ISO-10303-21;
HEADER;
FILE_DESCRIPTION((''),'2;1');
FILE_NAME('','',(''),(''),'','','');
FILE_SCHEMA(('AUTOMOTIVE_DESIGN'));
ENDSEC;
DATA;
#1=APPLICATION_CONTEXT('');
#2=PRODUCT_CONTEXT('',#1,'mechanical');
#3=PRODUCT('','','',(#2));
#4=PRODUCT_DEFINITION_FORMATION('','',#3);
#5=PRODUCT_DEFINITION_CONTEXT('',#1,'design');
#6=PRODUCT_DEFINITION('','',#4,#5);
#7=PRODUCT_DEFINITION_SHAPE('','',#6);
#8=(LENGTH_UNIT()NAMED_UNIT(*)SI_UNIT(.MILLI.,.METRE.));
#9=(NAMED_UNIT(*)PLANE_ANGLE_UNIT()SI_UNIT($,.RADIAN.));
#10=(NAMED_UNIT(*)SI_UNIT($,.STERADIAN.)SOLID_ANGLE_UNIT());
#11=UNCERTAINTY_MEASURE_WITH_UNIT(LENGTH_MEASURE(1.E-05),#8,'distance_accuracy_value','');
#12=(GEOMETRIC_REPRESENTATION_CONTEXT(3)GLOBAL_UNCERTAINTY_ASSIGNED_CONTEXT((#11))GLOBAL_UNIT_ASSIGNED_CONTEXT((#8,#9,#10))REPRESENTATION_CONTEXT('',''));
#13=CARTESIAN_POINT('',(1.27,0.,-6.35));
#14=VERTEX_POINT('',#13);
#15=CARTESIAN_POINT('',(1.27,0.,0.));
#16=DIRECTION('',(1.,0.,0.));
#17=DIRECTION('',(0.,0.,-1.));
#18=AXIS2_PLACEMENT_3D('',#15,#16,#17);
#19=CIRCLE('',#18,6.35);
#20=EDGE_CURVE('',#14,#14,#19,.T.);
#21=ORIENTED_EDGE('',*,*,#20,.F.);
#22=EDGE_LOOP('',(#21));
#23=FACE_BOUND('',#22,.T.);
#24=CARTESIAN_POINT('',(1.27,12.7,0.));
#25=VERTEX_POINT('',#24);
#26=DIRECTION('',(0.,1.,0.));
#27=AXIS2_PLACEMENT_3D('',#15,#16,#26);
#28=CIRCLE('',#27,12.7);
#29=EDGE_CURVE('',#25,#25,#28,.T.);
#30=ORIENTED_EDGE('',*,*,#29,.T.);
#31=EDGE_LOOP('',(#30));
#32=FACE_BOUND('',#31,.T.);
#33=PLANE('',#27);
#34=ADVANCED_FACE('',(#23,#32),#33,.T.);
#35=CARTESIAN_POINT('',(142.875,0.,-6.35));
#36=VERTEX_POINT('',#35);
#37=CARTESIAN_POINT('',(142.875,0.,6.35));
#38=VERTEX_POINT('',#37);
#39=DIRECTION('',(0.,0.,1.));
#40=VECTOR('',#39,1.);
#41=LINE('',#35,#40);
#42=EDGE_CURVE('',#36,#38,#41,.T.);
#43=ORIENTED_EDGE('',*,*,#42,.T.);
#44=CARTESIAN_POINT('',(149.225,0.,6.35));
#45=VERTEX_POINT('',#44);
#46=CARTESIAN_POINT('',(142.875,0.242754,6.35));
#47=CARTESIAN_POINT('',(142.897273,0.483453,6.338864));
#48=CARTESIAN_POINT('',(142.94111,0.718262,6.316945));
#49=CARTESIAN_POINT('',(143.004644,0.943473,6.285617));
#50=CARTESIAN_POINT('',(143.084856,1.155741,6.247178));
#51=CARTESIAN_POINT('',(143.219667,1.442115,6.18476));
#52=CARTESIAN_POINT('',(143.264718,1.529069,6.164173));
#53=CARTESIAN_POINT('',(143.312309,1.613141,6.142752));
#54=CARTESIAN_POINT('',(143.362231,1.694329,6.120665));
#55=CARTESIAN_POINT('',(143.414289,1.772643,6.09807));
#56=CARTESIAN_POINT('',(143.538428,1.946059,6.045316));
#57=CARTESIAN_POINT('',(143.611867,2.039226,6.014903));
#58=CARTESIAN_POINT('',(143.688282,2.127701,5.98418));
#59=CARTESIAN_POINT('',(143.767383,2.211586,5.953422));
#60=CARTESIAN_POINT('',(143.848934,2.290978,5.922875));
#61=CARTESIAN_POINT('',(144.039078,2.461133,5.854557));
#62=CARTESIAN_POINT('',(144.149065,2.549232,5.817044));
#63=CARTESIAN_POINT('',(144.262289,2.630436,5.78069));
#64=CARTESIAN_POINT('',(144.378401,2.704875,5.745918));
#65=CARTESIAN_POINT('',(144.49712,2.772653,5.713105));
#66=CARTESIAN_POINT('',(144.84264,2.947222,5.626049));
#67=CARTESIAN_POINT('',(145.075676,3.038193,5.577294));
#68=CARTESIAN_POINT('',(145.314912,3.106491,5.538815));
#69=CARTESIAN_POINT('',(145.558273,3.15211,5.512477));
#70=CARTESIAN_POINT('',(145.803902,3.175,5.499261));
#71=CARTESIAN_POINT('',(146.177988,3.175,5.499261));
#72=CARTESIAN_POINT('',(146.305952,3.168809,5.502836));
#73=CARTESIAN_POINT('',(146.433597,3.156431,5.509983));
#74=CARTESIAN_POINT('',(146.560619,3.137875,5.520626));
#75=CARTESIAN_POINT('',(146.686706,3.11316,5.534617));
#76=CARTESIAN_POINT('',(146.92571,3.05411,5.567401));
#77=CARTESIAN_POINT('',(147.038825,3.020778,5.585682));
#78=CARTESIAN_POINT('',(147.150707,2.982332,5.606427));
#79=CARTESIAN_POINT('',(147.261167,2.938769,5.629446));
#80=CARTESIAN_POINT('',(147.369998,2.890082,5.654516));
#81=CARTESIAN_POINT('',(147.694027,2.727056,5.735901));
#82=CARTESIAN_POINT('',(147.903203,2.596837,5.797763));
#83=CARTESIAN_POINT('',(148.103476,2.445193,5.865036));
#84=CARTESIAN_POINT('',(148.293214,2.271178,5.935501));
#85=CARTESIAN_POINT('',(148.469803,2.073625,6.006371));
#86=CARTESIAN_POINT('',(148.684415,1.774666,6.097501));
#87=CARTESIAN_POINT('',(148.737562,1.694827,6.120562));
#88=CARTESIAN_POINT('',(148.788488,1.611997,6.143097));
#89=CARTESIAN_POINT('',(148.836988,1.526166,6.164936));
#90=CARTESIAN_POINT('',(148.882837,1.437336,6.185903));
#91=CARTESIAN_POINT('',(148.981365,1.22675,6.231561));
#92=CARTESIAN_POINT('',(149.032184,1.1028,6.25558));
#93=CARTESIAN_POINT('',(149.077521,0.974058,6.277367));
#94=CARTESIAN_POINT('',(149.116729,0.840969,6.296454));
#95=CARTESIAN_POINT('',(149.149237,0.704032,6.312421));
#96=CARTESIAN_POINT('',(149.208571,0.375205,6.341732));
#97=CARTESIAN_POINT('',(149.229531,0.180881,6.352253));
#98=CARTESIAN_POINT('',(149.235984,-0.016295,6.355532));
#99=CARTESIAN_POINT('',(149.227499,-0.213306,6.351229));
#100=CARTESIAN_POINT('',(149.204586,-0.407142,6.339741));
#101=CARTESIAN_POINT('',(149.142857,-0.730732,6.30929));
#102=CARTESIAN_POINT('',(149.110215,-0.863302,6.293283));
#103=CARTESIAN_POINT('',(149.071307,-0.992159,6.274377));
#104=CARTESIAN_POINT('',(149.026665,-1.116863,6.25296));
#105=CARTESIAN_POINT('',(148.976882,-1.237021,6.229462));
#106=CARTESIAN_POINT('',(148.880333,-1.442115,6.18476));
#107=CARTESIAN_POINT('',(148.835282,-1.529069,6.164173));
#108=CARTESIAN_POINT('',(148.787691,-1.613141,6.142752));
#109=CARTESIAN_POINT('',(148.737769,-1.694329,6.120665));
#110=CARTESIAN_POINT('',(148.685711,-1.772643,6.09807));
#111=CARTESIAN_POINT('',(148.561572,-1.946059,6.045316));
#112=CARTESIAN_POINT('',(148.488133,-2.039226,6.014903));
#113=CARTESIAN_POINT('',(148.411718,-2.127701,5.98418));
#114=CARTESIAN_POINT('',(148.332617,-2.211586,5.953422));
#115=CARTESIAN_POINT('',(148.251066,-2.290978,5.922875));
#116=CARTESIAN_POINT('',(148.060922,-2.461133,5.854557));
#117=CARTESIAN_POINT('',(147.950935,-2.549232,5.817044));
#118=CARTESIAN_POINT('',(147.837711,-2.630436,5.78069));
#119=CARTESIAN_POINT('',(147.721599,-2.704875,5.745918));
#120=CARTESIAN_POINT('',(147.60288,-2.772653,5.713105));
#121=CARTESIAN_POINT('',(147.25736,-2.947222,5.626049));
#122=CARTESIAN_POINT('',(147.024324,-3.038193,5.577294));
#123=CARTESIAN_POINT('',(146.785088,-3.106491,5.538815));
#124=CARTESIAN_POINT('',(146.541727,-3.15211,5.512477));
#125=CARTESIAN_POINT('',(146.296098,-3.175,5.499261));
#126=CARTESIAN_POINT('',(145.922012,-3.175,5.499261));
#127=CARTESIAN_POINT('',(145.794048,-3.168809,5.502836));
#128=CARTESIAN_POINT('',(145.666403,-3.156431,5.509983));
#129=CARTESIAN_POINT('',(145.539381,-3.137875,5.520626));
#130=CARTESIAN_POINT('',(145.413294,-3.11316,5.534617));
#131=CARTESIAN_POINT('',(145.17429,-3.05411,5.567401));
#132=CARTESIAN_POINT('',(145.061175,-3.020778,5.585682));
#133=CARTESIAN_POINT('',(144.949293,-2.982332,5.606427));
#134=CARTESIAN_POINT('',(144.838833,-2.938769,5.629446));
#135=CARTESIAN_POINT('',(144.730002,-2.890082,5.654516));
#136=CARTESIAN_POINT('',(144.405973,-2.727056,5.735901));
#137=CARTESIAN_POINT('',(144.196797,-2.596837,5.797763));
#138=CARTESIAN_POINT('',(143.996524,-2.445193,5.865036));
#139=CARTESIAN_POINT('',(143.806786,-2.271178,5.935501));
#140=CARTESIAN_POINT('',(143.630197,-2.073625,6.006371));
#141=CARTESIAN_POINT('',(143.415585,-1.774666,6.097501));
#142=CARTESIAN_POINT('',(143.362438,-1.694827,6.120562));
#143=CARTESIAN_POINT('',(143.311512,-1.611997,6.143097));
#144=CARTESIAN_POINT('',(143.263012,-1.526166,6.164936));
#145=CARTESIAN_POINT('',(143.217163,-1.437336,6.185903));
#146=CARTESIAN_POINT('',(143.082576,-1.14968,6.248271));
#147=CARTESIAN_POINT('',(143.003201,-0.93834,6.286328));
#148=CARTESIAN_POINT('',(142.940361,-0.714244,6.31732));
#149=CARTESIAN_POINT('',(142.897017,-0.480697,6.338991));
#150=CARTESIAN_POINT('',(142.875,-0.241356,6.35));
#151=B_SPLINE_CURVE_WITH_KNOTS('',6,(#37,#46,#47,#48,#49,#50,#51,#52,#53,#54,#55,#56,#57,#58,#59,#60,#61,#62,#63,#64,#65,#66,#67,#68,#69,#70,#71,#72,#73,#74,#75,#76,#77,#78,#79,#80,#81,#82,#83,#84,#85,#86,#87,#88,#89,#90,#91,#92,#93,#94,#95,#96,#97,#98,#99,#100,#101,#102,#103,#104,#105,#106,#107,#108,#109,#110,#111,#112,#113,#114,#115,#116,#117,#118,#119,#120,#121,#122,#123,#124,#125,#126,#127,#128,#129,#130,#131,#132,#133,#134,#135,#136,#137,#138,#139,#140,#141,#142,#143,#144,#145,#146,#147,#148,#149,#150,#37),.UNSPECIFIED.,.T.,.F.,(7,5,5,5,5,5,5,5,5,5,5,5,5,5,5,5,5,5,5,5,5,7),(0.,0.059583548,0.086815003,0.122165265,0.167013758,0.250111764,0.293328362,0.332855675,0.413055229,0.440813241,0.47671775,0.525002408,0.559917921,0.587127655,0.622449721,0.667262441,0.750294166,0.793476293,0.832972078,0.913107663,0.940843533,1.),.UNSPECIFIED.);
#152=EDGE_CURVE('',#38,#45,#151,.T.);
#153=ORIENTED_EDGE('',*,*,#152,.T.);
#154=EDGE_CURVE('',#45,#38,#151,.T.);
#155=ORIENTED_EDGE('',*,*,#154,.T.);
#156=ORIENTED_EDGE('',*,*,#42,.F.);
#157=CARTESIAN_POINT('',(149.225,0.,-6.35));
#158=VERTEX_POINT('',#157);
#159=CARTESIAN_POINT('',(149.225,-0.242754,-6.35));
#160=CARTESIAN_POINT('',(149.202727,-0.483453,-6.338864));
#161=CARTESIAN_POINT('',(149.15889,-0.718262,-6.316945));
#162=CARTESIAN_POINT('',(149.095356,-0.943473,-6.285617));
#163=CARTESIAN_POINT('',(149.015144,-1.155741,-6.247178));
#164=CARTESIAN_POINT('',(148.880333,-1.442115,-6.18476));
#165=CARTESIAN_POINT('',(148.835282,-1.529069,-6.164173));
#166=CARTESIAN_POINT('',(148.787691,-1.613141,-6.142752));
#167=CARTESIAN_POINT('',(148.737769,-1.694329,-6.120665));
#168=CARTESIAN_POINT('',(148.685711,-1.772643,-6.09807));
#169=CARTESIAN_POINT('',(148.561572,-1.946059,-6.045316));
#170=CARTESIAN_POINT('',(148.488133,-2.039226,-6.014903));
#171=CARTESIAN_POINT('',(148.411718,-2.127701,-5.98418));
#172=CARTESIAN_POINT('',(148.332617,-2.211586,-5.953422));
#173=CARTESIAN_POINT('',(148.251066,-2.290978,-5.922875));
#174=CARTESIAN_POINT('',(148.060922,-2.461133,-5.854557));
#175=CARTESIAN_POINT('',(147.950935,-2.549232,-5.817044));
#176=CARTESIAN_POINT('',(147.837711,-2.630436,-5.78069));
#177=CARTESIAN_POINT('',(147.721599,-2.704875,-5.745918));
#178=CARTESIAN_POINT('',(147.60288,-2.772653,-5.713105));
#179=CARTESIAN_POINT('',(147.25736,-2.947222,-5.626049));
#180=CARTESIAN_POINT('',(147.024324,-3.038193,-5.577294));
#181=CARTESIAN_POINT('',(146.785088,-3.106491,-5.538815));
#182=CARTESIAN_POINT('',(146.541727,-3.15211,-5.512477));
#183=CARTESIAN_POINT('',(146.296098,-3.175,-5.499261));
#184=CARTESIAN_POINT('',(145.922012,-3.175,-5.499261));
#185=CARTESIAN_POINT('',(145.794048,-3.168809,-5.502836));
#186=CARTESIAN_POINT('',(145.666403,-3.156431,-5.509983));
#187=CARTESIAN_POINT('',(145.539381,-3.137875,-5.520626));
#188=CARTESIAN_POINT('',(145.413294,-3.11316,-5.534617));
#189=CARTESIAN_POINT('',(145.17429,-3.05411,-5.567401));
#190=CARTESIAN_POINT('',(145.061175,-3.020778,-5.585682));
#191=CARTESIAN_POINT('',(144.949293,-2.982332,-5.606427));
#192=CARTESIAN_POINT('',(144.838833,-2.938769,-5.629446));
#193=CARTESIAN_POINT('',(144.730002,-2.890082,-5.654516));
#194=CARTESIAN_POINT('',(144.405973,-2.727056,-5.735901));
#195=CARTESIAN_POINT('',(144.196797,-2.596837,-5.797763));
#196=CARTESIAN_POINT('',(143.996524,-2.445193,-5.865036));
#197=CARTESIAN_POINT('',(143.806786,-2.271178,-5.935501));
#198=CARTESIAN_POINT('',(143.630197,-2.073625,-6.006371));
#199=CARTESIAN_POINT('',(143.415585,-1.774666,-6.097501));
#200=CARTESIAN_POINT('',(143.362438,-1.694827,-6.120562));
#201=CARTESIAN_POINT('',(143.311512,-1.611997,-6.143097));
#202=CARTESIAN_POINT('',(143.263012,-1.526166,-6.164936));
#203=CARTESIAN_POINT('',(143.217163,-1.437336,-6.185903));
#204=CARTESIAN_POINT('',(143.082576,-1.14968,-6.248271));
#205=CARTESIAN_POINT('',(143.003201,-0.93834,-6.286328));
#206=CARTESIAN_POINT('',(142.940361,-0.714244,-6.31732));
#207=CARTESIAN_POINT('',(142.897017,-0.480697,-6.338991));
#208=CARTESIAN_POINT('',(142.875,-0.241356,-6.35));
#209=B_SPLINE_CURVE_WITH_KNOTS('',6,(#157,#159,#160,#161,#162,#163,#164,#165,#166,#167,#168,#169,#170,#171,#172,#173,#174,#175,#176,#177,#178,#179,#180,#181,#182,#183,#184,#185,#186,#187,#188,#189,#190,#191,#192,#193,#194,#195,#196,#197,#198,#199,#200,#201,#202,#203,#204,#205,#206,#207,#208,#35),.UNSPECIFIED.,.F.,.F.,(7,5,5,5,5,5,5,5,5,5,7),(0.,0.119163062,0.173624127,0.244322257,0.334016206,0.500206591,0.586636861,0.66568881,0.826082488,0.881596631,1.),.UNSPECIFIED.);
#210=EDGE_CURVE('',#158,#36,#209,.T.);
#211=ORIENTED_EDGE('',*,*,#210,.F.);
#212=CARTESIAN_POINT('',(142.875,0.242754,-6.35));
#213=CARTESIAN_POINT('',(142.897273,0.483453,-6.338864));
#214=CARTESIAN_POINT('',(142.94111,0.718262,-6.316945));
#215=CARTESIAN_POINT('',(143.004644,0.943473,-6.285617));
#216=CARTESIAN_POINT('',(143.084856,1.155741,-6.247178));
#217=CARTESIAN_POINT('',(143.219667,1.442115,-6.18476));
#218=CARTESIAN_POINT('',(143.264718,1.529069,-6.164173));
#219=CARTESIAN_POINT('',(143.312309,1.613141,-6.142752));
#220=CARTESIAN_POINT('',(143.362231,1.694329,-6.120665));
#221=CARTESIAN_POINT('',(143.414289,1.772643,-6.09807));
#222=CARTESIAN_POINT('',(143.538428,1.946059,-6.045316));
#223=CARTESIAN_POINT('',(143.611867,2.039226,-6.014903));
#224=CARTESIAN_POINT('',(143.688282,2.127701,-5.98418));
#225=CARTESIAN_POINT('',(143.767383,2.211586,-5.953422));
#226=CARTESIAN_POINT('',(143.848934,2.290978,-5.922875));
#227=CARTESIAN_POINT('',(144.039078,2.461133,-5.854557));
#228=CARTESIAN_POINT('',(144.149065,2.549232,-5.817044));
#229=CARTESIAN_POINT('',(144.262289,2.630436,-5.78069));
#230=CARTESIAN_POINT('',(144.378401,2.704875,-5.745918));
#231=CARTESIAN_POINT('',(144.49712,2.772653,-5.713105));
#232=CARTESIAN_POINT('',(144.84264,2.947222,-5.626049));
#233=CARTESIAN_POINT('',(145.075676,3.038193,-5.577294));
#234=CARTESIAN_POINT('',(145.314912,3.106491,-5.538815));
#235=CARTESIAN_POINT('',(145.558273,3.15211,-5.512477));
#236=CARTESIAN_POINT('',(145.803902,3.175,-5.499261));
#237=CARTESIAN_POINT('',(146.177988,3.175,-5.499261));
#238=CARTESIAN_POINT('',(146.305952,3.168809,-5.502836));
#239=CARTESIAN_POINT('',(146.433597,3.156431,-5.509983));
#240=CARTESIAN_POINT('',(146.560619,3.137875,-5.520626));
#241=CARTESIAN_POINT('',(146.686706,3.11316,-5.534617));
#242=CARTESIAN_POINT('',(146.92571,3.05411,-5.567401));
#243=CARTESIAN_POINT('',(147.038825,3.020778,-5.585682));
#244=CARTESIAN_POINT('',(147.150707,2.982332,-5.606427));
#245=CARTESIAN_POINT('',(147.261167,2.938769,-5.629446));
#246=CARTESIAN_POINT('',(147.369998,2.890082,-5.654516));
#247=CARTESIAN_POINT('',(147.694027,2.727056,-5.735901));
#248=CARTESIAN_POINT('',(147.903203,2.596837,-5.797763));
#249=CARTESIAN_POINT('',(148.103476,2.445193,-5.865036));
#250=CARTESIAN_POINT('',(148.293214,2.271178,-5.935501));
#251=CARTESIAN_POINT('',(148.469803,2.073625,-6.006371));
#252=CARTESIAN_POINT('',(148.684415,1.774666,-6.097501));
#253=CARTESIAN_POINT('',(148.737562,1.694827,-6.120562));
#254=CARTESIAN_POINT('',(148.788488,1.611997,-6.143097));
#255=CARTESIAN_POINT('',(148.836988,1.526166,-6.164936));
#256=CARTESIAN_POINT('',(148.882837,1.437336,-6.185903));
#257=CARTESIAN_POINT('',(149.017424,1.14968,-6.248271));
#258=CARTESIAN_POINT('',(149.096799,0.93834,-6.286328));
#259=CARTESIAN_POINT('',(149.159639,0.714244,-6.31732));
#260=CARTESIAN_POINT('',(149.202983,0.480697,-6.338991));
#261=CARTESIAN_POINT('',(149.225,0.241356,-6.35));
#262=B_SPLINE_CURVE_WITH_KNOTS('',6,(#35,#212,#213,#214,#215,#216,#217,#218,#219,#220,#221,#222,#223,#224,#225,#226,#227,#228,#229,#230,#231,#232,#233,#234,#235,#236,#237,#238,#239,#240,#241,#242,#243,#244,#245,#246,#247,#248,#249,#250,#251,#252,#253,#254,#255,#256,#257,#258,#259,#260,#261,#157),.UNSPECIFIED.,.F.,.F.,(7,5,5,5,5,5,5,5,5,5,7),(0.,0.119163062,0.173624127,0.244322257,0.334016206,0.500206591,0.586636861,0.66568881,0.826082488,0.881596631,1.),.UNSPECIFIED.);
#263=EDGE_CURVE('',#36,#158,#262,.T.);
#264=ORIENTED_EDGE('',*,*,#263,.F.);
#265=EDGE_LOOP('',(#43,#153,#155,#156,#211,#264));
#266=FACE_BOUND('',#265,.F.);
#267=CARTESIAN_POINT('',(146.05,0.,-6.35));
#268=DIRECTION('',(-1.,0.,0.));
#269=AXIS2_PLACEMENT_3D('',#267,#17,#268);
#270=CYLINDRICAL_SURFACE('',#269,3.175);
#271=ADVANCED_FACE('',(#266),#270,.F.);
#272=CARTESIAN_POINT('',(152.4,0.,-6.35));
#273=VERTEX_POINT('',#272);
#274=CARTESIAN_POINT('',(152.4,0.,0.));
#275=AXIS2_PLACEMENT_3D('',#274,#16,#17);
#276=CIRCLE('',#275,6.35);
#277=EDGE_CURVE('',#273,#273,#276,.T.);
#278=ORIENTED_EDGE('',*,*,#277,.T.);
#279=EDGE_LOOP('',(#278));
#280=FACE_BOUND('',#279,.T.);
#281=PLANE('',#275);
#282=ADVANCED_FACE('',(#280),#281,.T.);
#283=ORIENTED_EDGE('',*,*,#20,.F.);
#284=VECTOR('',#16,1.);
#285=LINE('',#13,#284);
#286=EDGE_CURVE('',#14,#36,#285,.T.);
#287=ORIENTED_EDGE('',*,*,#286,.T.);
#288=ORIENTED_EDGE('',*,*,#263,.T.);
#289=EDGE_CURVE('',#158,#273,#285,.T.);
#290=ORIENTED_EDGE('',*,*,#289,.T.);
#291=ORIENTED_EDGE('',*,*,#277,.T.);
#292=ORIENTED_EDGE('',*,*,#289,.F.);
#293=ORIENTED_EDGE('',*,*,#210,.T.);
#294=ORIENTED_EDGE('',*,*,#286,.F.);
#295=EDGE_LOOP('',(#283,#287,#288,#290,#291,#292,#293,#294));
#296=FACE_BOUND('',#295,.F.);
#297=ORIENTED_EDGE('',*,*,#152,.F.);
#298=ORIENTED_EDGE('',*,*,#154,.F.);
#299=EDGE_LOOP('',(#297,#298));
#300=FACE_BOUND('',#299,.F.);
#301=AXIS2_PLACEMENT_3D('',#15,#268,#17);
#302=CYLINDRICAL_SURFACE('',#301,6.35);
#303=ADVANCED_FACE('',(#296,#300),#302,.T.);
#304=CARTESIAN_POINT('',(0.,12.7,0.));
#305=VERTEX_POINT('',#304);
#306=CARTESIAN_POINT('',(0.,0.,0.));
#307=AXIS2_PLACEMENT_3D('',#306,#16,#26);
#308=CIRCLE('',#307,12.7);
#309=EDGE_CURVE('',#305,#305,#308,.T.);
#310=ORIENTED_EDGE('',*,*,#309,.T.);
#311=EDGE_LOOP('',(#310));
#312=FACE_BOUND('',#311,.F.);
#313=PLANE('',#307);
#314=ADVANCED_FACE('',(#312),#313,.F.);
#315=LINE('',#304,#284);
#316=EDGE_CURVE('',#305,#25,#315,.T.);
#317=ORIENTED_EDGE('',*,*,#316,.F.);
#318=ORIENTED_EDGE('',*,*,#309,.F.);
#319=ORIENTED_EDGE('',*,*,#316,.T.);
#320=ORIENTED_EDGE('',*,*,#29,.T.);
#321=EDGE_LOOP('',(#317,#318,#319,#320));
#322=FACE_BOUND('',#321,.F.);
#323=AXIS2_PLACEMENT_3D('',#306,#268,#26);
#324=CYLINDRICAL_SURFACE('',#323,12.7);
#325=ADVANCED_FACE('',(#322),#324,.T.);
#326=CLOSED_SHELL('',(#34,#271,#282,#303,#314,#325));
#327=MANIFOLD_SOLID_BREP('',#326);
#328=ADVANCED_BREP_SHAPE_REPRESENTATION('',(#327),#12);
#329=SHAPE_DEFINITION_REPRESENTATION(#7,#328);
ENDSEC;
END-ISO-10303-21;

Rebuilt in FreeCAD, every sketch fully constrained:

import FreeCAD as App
import Part
import Sketcher

V = App.Vector
Q = App.Units.Quantity

doc = App.newDocument("Part")
body = doc.addObject("PartDesign::Body", "Body")

sketch1 = doc.addObject("Sketcher::SketchObject", "Sketch")
body.addObject(sketch1)
sketch1.AttachmentSupport = (doc.YZ_Plane, [""])
sketch1.MapMode = "FlatFace"
sketch1.addGeometry(Part.Circle(V(0, 0, 0), V(0, 0, 1), 13), False)
sketch1.addConstraint(Sketcher.Constraint("Coincident", 0, 3, -1, 1))
sketch1.addConstraint(Sketcher.Constraint("Diameter", 0, Q("1 in")))
pad1 = doc.addObject("PartDesign::Pad", "Pad")
body.addObject(pad1)
pad1.Profile = sketch1
pad1.Length = Q("0.05 in")

sketch2 = doc.addObject("Sketcher::SketchObject", "Sketch001")
body.addObject(sketch2)
sketch2.AttachmentSupport = (doc.YZ_Plane, [""])
sketch2.MapMode = "FlatFace"
sketch2.AttachmentOffset = App.Placement(V(0, 0, 0.05 * 25.4), App.Rotation())
sketch2.addGeometry(Part.Circle(V(0, 0, 0), V(0, 0, 1), 6), False)
sketch2.addConstraint(Sketcher.Constraint("Coincident", 0, 3, -1, 1))
sketch2.addConstraint(Sketcher.Constraint("Diameter", 0, Q("0.5 in")))
pad2 = doc.addObject("PartDesign::Pad", "Pad001")
body.addObject(pad2)
pad2.Profile = sketch2
pad2.Length = Q("5.95 in")

sketch3 = doc.addObject("Sketcher::SketchObject", "Sketch002")
body.addObject(sketch3)
sketch3.AttachmentSupport = (doc.XY_Plane, [""])
sketch3.MapMode = "FlatFace"
sketch3.AttachmentOffset = App.Placement(V(0, 0, -0.25 * 25.4), App.Rotation())
sketch3.addGeometry(Part.Circle(V(146.1, 0, 0), V(0, 0, 1), 3.2), False)
sketch3.addConstraint(Sketcher.Constraint("PointOnObject", 0, 3, -1))
sketch3.addConstraint(Sketcher.Constraint("Diameter", 0, Q("0.25 in")))
sketch3.addConstraint(Sketcher.Constraint("DistanceX", -1, 1, 0, 3, Q("5.75 in")))
pocket1 = doc.addObject("PartDesign::Pocket", "Pocket")
body.addObject(pocket1)
pocket1.Profile = sketch3
pocket1.Length = Q("0.5 in")
pocket1.Reversed = True

doc.recompute()
